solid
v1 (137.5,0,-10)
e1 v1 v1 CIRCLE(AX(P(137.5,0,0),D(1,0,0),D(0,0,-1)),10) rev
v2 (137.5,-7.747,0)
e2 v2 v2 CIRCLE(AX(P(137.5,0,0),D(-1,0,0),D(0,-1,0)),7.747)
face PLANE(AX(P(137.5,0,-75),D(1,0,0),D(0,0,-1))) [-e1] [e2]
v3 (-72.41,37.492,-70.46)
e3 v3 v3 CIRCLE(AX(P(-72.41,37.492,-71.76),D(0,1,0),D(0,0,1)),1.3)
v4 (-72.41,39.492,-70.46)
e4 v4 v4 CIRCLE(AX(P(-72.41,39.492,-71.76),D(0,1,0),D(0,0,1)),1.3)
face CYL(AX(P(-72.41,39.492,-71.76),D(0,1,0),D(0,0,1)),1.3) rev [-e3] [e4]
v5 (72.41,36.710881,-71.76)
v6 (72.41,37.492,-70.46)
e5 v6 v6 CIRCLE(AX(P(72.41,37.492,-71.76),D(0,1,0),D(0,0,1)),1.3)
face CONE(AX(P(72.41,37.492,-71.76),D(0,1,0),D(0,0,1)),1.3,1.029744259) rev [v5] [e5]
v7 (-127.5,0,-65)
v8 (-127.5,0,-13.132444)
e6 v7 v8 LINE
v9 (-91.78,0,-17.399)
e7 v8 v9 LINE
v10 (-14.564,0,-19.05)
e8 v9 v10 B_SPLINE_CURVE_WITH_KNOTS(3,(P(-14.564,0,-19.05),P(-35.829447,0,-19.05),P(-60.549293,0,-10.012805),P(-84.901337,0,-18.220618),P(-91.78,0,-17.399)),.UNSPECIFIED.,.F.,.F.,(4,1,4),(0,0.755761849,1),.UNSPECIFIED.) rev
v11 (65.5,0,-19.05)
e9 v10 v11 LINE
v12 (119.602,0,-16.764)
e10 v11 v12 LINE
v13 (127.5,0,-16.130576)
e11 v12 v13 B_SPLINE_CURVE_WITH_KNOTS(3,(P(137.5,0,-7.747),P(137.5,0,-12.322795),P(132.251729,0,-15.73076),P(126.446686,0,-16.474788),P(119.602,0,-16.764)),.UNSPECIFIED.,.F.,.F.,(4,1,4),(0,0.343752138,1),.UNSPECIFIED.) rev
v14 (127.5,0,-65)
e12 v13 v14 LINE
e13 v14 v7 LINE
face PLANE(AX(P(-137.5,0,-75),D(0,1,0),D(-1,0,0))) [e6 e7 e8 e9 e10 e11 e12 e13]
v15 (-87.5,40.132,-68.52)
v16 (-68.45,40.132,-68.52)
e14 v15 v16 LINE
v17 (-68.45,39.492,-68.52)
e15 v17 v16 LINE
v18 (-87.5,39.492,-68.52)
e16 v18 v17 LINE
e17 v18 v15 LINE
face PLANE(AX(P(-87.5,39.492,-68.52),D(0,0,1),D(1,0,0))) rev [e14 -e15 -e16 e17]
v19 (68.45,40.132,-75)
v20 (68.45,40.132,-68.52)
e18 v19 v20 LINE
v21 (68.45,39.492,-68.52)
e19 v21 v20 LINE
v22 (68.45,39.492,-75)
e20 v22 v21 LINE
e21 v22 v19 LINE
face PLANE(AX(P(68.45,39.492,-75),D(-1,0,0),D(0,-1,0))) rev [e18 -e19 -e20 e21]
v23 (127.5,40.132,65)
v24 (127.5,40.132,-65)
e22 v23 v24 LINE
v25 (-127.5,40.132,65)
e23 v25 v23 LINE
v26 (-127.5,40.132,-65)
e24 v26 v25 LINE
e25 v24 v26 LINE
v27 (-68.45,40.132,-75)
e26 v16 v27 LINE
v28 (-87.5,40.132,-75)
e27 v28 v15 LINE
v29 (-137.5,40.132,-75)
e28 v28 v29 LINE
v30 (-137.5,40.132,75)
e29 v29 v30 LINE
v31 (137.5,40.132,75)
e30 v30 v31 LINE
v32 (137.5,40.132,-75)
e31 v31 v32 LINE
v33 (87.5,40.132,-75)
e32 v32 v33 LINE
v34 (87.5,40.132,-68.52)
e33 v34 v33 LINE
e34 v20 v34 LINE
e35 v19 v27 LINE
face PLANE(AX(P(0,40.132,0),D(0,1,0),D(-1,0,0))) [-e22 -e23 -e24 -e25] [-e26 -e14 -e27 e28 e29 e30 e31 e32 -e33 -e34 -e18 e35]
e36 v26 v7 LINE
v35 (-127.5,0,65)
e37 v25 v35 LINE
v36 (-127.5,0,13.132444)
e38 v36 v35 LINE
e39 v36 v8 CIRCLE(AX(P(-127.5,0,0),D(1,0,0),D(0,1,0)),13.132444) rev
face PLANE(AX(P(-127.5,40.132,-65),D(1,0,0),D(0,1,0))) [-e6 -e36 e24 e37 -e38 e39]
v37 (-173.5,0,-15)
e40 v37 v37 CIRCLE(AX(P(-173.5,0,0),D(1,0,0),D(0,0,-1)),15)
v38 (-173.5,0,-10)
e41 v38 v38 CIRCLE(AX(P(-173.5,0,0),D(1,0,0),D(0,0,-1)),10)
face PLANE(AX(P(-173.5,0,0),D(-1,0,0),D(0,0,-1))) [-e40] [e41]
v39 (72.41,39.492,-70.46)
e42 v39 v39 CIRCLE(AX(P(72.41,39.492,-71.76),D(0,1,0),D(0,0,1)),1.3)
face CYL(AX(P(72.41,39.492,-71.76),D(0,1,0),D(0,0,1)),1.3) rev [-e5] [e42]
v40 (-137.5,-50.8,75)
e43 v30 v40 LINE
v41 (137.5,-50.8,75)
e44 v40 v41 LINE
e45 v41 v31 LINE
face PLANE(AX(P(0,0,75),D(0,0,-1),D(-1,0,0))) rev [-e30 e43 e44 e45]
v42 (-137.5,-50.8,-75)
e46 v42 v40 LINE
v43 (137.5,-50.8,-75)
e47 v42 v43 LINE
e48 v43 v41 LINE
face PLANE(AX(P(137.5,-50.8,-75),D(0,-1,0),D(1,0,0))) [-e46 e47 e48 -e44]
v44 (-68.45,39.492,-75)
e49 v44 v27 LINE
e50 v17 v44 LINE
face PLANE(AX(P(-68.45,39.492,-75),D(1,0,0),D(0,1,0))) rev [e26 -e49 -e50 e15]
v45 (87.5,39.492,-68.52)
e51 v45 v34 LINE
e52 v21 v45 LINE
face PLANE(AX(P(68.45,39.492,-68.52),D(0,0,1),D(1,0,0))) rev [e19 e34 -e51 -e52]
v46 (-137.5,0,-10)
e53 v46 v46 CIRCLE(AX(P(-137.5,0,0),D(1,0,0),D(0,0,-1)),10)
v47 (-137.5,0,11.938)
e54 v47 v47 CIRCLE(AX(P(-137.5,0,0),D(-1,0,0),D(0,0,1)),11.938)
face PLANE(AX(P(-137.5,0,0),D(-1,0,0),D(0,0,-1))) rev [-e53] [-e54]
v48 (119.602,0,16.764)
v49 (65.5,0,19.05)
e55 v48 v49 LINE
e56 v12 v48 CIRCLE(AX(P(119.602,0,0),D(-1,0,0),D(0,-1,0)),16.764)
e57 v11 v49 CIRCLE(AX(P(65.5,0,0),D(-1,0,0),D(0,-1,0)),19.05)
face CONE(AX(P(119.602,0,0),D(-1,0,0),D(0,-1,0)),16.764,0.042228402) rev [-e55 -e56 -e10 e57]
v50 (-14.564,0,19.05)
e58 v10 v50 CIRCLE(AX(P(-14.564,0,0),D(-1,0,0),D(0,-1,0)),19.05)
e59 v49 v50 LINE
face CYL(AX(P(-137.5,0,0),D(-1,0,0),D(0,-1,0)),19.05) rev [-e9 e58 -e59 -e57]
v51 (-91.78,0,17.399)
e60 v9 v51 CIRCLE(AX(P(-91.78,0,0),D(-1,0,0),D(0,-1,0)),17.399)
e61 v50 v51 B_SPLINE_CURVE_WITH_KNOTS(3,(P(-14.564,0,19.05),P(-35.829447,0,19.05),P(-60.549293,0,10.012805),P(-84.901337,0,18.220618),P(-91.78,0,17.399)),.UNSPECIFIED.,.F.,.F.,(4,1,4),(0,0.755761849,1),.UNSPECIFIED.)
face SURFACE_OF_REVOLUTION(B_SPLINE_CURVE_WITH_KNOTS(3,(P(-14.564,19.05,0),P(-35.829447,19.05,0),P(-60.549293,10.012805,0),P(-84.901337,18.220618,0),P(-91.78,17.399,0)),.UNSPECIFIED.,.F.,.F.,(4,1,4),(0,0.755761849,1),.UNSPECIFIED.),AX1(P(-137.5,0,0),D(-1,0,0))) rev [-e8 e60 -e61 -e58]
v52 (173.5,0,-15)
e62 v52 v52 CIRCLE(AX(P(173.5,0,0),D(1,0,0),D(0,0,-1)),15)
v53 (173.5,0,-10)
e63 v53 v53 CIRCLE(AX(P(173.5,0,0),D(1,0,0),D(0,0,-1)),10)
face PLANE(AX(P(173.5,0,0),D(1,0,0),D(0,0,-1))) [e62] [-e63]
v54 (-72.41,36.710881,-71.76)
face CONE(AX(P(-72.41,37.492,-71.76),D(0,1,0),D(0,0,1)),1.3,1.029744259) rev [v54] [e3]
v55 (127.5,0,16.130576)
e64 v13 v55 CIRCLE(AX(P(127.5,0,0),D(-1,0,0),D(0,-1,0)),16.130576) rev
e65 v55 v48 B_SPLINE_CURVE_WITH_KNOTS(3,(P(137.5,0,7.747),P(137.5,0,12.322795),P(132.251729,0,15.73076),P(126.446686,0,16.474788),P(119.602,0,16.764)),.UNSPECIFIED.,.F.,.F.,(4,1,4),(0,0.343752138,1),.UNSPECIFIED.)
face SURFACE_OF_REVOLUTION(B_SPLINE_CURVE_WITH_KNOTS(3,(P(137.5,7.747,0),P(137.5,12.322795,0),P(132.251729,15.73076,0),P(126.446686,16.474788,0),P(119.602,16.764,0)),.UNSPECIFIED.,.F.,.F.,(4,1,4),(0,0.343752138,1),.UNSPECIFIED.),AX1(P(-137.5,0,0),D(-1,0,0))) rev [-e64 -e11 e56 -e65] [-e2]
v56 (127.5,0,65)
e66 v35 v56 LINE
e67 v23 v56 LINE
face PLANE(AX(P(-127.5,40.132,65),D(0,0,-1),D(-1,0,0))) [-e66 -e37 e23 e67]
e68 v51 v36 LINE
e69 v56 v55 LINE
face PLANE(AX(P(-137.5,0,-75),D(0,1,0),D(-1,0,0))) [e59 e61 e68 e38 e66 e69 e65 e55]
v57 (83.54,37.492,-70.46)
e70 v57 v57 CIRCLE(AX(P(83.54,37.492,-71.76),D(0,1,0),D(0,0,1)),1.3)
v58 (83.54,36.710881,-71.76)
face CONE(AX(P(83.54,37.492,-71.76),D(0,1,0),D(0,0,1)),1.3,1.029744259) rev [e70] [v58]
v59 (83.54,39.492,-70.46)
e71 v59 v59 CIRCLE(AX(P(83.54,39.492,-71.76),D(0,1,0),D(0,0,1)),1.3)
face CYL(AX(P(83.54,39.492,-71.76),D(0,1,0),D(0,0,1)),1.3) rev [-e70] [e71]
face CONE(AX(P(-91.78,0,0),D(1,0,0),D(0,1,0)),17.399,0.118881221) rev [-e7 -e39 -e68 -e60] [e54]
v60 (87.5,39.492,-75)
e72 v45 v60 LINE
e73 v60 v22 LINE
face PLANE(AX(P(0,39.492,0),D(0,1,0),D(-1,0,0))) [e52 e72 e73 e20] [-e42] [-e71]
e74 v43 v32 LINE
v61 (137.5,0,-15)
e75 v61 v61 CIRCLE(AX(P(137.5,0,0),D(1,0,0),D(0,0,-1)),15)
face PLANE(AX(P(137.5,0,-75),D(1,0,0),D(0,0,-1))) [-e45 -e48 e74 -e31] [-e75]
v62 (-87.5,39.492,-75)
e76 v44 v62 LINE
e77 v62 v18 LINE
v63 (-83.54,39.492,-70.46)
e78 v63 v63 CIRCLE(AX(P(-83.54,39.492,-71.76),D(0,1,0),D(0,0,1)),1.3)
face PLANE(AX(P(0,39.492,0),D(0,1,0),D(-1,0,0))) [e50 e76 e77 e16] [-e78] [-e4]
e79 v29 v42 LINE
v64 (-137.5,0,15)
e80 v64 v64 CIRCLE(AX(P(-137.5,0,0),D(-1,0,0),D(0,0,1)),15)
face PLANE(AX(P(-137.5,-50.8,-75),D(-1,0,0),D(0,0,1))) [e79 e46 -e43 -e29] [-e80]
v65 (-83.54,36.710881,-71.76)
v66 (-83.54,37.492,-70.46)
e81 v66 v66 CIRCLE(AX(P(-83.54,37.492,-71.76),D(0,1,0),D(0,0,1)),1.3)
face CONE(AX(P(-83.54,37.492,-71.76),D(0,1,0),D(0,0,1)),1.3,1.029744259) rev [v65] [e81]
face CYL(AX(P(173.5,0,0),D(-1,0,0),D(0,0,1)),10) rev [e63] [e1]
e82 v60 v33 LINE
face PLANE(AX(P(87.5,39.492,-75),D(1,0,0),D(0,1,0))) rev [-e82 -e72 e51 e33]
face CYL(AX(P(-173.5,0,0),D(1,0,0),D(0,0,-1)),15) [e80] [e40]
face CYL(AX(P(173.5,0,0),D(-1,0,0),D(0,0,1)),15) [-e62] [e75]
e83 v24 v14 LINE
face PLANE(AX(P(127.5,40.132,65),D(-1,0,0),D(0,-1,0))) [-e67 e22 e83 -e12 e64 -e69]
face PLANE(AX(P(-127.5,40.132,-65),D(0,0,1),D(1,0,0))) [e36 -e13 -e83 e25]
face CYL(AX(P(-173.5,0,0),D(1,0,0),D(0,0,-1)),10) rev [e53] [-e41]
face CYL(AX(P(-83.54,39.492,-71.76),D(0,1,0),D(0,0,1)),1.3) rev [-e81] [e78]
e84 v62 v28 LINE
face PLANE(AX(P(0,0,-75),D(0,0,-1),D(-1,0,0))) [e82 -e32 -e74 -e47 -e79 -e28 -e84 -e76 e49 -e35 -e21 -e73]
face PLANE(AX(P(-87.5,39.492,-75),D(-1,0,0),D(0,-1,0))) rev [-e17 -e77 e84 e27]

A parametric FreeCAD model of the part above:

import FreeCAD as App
import Part
import Sketcher


def add_polygon(sketch, points):
    """Adds a closed chain of lines whose ends are joined by coincident constraints."""
    first, n = sketch.GeometryCount, len(points)
    for a, b in zip(points, points[1:] + points[:1]):
        sketch.addGeometry(Part.LineSegment(App.Vector(*a, 0), App.Vector(*b, 0)), False)
    for i in range(n):
        sketch.addConstraint(Sketcher.Constraint("Coincident", first + i, 2, first + (i + 1) % n, 1))

doc = App.newDocument("Part")
body = doc.addObject("PartDesign::Body", "Body")

# Sketch on XY plane
sketch1 = doc.addObject("Sketcher::SketchObject", "Sketch")
body.addObject(sketch1)
sketch1.AttachmentSupport = (doc.XY_Plane, [""])
sketch1.MapMode = "FlatFace"
add_polygon(sketch1, [(-138, 0), (-138, -51), (138, -51), (138, 0)])  # lines 0-3
sketch1.addConstraint([
    Sketcher.Constraint("Vertical", 0),
    Sketcher.Constraint("Horizontal", 1),
    Sketcher.Constraint("Vertical", 2),
    Sketcher.Constraint("Horizontal", 3),
    Sketcher.Constraint("Symmetric", 2, 2, 3, 2, -1, 1),
    Sketcher.Constraint("DistanceX", 1, 1, 1, 2, 275.0),
    Sketcher.Constraint("DistanceY", 0, 2, 0, 1, 50.8),
])
pad1 = doc.addObject("PartDesign::Pad", "Pad")
body.addObject(pad1)
pad1.Profile = sketch1
pad1.Type = "TwoLengths"
pad1.Length = 75
pad1.Length2 = 75

# Sketch on XZ plane
sketch2 = doc.addObject("Sketcher::SketchObject", "Sketch001")
body.addObject(sketch2)
sketch2.AttachmentSupport = (doc.XZ_Plane, [""])
sketch2.MapMode = "FlatFace"
add_polygon(sketch2, [(-138, -75), (-138, 75), (138, 75), (138, -75)])  # lines 0-3
add_polygon(sketch2, [(128, 65), (-128, 65), (-128, -65), (128, -65)])  # lines 4-7
sketch2.addConstraint([
    Sketcher.Constraint("Vertical", 0),
    Sketcher.Constraint("Horizontal", 1),
    Sketcher.Constraint("Vertical", 2),
    Sketcher.Constraint("Horizontal", 3),
    Sketcher.Constraint("Horizontal", 4),
    Sketcher.Constraint("Vertical", 5),
    Sketcher.Constraint("Horizontal", 6),
    Sketcher.Constraint("Vertical", 7),
    Sketcher.Constraint("Symmetric", 0, 2, 2, 2, -1, 1),
    Sketcher.Constraint("Symmetric", 4, 2, 6, 2, -1, 1),
    Sketcher.Constraint("DistanceX", 1, 1, 1, 2, 275.0),
    Sketcher.Constraint("DistanceX", 4, 2, 4, 1, 255.0),
    Sketcher.Constraint("DistanceY", 0, 1, 0, 2, 150.0),
    Sketcher.Constraint("DistanceY", 5, 2, 5, 1, 130.0),
])
pad2 = doc.addObject("PartDesign::Pad", "Pad001")
body.addObject(pad2)
pad2.Profile = sketch2
pad2.Length = 40.132
pad2.Reversed = True

# Sketch on XY plane
sketch3 = doc.addObject("Sketcher::SketchObject", "Sketch002")
body.addObject(sketch3)
sketch3.AttachmentSupport = (doc.XY_Plane, [""])
sketch3.MapMode = "FlatFace"
sketch3.addGeometry([
    Part.LineSegment(App.Vector(-137.5, 0, 0), App.Vector(137.5, 0, 0)),  # 0
    Part.LineSegment(App.Vector(137.5, 0, 0), App.Vector(137.5, 7.747, 0)),  # 1
    Part.BSplineCurve([App.Vector(119.602, 16.764, 0), App.Vector(126.446686, 16.474788, 0), App.Vector(132.251729, 15.73076, 0), App.Vector(137.5, 12.322795, 0), App.Vector(137.5, 7.747, 0)], [4, 1, 4], [0, 0.656247862, 1], False, 3, [1, 1, 1, 1, 1], False),  # 2
    Part.LineSegment(App.Vector(119.602, 16.764, 0), App.Vector(65.5, 19.05, 0)),  # 3
    Part.LineSegment(App.Vector(65.5, 19.05, 0), App.Vector(-14.564, 19.05, 0)),  # 4
    Part.BSplineCurve([App.Vector(-91.78, 17.399, 0), App.Vector(-84.901337, 18.220618, 0), App.Vector(-60.549293, 10.012805, 0), App.Vector(-35.829447, 19.05, 0), App.Vector(-14.564, 19.05, 0)], [4, 1, 4], [0, 0.244238151, 1], False, 3, [1, 1, 1, 1, 1], False),  # 5
    Part.LineSegment(App.Vector(-91.78, 17.399, 0), App.Vector(-137.5, 11.938, 0)),  # 6
    Part.LineSegment(App.Vector(-137.5, 11.938, 0), App.Vector(-137.5, 0, 0)),  # 7
], False)
sketch3.addConstraint([
    Sketcher.Constraint("Block", 2),
    Sketcher.Constraint("Block", 5),
    Sketcher.Constraint("Coincident", 0, 2, 1, 1),
    Sketcher.Constraint("Coincident", 1, 2, 2, 2),
    Sketcher.Constraint("Coincident", 2, 1, 3, 1),
    Sketcher.Constraint("Coincident", 3, 2, 4, 1),
    Sketcher.Constraint("Coincident", 4, 2, 5, 2),
    Sketcher.Constraint("Coincident", 5, 1, 6, 1),
    Sketcher.Constraint("Coincident", 6, 2, 7, 1),
    Sketcher.Constraint("Coincident", 7, 2, 0, 1),
    Sketcher.Constraint("Horizontal", 0),
    Sketcher.Constraint("Vertical", 1),
    Sketcher.Constraint("Horizontal", 4),
    Sketcher.Constraint("Vertical", 7),
    Sketcher.Constraint("Symmetric", 0, 2, 7, 2, -1, 1),
    Sketcher.Constraint("DistanceX", 3, 2, 1, 2, 72.0),
    Sketcher.Constraint("DistanceY", 7, 2, 7, 1, 11.938),
])
groove = doc.addObject("PartDesign::Groove", "Groove")
body.addObject(groove)
groove.Profile = sketch3
groove.ReferenceAxis = (sketch3, ["H_Axis"])
groove.Angle = 360

# Sketch on YZ plane
sketch4 = doc.addObject("Sketcher::SketchObject", "Sketch003")
body.addObject(sketch4)
sketch4.AttachmentSupport = (doc.YZ_Plane, [""])
sketch4.MapMode = "FlatFace"
sketch4.AttachmentOffset = App.Placement(App.Vector(0, 0, 137.5), App.Rotation())
sketch4.addGeometry([
    Part.Circle(App.Vector(0, 0, 0), App.Vector(0, 0, 1), 15),
    Part.Circle(App.Vector(0, 0, 0), App.Vector(0, 0, 1), 10),
], False)
sketch4.addConstraint([
    Sketcher.Constraint("Coincident", 0, 3, -1, 1),
    Sketcher.Constraint("Coincident", 1, 3, -1, 1),
    Sketcher.Constraint("Diameter", 0, 30.0),
    Sketcher.Constraint("Diameter", 1, 20.0),
])
pad3 = doc.addObject("PartDesign::Pad", "Pad002")
body.addObject(pad3)
pad3.Profile = sketch4
pad3.Length = 36
doc.recompute()

mirrored = doc.addObject("PartDesign::Mirrored", "Mirrored")
body.addObject(mirrored)
mirrored.Originals = [pad3]
mirrored.MirrorPlane = (doc.YZ_Plane, [""])
body.Tip = mirrored

# Sketch on XZ plane
sketch5 = doc.addObject("Sketcher::SketchObject", "Sketch004")
body.addObject(sketch5)
sketch5.AttachmentSupport = (doc.XZ_Plane, [""])
sketch5.MapMode = "FlatFace"
sketch5.AttachmentOffset = App.Placement(App.Vector(0, 0, -40.132), App.Rotation())
add_polygon(sketch5, [(-88, -75), (-88, -69), (-68, -69), (-68, -75)])  # lines 0-3
add_polygon(sketch5, [(68, -75), (68, -69), (88, -69), (88, -75)])  # lines 4-7
sketch5.addConstraint([
    Sketcher.Constraint("Vertical", 0),
    Sketcher.Constraint("Horizontal", 1),
    Sketcher.Constraint("Vertical", 2),
    Sketcher.Constraint("Horizontal", 3),
    Sketcher.Constraint("Vertical", 4),
    Sketcher.Constraint("Horizontal", 5),
    Sketcher.Constraint("Vertical", 6),
    Sketcher.Constraint("Horizontal", 7),
    Sketcher.Constraint("Symmetric", 1, 2, 4, 2, -2),
    Sketcher.Constraint("Symmetric", 3, 2, 6, 2, -2),
    Sketcher.Constraint("DistanceY", 2, 2, -1, 1, 75.0),
    Sketcher.Constraint("DistanceX", 0, 2, 5, 2, 175.0),
    Sketcher.Constraint("DistanceX", 1, 1, 1, 2, 19.05),
    Sketcher.Constraint("DistanceY", 0, 1, 0, 2, 6.48),
])
pocket1 = doc.addObject("PartDesign::Pocket", "Pocket")
body.addObject(pocket1)
pocket1.Profile = sketch5
pocket1.Length = 0.64
pocket1.Reversed = True

# Sketch on XZ plane
sketch6 = doc.addObject("Sketcher::SketchObject", "Sketch005")
body.addObject(sketch6)
sketch6.AttachmentSupport = (doc.XZ_Plane, [""])
sketch6.MapMode = "FlatFace"
sketch6.AttachmentOffset = App.Placement(App.Vector(0, 0, -39.492), App.Rotation())
sketch6.addGeometry([
    Part.Circle(App.Vector(-83.5, -71.8, 0), App.Vector(0, 0, 1), 1.3),
    Part.Circle(App.Vector(-72.4, -71.8, 0), App.Vector(0, 0, 1), 1.3),
    Part.Circle(App.Vector(72.4, -71.8, 0), App.Vector(0, 0, 1), 1.3),
    Part.Circle(App.Vector(83.5, -71.8, 0), App.Vector(0, 0, 1), 1.3),
], False)
sketch6.addConstraint([
    Sketcher.Constraint("Equal", 0, 1),
    Sketcher.Constraint("Equal", 1, 2),
    Sketcher.Constraint("Equal", 2, 3),
    Sketcher.Constraint("Symmetric", 1, 3, 2, 3, -2),
    Sketcher.Constraint("Symmetric", 0, 3, 3, 3, -2),
    Sketcher.Constraint("Horizontal", 0, 3, 1, 3),
    Sketcher.Constraint("Diameter", 0, 2.6),
    Sketcher.Constraint("DistanceX", 0, 3, -1, 1, 83.54),
    Sketcher.Constraint("DistanceY", 0, 3, -1, 1, 71.76),
    Sketcher.Constraint("DistanceX", 1, 3, -1, 1, 72.41),
])
doc.recompute()
hole = doc.addObject("PartDesign::Hole", "Hole")
body.addObject(hole)
hole.Profile = sketch6
hole.ThreadType = "None"
hole.Diameter = 2.6
hole.DepthType = "Dimension"
hole.Depth = 2
hole.DrillPoint = "Angled"
hole.DrillPointAngle = 118
hole.Reversed = True

doc.recompute()
